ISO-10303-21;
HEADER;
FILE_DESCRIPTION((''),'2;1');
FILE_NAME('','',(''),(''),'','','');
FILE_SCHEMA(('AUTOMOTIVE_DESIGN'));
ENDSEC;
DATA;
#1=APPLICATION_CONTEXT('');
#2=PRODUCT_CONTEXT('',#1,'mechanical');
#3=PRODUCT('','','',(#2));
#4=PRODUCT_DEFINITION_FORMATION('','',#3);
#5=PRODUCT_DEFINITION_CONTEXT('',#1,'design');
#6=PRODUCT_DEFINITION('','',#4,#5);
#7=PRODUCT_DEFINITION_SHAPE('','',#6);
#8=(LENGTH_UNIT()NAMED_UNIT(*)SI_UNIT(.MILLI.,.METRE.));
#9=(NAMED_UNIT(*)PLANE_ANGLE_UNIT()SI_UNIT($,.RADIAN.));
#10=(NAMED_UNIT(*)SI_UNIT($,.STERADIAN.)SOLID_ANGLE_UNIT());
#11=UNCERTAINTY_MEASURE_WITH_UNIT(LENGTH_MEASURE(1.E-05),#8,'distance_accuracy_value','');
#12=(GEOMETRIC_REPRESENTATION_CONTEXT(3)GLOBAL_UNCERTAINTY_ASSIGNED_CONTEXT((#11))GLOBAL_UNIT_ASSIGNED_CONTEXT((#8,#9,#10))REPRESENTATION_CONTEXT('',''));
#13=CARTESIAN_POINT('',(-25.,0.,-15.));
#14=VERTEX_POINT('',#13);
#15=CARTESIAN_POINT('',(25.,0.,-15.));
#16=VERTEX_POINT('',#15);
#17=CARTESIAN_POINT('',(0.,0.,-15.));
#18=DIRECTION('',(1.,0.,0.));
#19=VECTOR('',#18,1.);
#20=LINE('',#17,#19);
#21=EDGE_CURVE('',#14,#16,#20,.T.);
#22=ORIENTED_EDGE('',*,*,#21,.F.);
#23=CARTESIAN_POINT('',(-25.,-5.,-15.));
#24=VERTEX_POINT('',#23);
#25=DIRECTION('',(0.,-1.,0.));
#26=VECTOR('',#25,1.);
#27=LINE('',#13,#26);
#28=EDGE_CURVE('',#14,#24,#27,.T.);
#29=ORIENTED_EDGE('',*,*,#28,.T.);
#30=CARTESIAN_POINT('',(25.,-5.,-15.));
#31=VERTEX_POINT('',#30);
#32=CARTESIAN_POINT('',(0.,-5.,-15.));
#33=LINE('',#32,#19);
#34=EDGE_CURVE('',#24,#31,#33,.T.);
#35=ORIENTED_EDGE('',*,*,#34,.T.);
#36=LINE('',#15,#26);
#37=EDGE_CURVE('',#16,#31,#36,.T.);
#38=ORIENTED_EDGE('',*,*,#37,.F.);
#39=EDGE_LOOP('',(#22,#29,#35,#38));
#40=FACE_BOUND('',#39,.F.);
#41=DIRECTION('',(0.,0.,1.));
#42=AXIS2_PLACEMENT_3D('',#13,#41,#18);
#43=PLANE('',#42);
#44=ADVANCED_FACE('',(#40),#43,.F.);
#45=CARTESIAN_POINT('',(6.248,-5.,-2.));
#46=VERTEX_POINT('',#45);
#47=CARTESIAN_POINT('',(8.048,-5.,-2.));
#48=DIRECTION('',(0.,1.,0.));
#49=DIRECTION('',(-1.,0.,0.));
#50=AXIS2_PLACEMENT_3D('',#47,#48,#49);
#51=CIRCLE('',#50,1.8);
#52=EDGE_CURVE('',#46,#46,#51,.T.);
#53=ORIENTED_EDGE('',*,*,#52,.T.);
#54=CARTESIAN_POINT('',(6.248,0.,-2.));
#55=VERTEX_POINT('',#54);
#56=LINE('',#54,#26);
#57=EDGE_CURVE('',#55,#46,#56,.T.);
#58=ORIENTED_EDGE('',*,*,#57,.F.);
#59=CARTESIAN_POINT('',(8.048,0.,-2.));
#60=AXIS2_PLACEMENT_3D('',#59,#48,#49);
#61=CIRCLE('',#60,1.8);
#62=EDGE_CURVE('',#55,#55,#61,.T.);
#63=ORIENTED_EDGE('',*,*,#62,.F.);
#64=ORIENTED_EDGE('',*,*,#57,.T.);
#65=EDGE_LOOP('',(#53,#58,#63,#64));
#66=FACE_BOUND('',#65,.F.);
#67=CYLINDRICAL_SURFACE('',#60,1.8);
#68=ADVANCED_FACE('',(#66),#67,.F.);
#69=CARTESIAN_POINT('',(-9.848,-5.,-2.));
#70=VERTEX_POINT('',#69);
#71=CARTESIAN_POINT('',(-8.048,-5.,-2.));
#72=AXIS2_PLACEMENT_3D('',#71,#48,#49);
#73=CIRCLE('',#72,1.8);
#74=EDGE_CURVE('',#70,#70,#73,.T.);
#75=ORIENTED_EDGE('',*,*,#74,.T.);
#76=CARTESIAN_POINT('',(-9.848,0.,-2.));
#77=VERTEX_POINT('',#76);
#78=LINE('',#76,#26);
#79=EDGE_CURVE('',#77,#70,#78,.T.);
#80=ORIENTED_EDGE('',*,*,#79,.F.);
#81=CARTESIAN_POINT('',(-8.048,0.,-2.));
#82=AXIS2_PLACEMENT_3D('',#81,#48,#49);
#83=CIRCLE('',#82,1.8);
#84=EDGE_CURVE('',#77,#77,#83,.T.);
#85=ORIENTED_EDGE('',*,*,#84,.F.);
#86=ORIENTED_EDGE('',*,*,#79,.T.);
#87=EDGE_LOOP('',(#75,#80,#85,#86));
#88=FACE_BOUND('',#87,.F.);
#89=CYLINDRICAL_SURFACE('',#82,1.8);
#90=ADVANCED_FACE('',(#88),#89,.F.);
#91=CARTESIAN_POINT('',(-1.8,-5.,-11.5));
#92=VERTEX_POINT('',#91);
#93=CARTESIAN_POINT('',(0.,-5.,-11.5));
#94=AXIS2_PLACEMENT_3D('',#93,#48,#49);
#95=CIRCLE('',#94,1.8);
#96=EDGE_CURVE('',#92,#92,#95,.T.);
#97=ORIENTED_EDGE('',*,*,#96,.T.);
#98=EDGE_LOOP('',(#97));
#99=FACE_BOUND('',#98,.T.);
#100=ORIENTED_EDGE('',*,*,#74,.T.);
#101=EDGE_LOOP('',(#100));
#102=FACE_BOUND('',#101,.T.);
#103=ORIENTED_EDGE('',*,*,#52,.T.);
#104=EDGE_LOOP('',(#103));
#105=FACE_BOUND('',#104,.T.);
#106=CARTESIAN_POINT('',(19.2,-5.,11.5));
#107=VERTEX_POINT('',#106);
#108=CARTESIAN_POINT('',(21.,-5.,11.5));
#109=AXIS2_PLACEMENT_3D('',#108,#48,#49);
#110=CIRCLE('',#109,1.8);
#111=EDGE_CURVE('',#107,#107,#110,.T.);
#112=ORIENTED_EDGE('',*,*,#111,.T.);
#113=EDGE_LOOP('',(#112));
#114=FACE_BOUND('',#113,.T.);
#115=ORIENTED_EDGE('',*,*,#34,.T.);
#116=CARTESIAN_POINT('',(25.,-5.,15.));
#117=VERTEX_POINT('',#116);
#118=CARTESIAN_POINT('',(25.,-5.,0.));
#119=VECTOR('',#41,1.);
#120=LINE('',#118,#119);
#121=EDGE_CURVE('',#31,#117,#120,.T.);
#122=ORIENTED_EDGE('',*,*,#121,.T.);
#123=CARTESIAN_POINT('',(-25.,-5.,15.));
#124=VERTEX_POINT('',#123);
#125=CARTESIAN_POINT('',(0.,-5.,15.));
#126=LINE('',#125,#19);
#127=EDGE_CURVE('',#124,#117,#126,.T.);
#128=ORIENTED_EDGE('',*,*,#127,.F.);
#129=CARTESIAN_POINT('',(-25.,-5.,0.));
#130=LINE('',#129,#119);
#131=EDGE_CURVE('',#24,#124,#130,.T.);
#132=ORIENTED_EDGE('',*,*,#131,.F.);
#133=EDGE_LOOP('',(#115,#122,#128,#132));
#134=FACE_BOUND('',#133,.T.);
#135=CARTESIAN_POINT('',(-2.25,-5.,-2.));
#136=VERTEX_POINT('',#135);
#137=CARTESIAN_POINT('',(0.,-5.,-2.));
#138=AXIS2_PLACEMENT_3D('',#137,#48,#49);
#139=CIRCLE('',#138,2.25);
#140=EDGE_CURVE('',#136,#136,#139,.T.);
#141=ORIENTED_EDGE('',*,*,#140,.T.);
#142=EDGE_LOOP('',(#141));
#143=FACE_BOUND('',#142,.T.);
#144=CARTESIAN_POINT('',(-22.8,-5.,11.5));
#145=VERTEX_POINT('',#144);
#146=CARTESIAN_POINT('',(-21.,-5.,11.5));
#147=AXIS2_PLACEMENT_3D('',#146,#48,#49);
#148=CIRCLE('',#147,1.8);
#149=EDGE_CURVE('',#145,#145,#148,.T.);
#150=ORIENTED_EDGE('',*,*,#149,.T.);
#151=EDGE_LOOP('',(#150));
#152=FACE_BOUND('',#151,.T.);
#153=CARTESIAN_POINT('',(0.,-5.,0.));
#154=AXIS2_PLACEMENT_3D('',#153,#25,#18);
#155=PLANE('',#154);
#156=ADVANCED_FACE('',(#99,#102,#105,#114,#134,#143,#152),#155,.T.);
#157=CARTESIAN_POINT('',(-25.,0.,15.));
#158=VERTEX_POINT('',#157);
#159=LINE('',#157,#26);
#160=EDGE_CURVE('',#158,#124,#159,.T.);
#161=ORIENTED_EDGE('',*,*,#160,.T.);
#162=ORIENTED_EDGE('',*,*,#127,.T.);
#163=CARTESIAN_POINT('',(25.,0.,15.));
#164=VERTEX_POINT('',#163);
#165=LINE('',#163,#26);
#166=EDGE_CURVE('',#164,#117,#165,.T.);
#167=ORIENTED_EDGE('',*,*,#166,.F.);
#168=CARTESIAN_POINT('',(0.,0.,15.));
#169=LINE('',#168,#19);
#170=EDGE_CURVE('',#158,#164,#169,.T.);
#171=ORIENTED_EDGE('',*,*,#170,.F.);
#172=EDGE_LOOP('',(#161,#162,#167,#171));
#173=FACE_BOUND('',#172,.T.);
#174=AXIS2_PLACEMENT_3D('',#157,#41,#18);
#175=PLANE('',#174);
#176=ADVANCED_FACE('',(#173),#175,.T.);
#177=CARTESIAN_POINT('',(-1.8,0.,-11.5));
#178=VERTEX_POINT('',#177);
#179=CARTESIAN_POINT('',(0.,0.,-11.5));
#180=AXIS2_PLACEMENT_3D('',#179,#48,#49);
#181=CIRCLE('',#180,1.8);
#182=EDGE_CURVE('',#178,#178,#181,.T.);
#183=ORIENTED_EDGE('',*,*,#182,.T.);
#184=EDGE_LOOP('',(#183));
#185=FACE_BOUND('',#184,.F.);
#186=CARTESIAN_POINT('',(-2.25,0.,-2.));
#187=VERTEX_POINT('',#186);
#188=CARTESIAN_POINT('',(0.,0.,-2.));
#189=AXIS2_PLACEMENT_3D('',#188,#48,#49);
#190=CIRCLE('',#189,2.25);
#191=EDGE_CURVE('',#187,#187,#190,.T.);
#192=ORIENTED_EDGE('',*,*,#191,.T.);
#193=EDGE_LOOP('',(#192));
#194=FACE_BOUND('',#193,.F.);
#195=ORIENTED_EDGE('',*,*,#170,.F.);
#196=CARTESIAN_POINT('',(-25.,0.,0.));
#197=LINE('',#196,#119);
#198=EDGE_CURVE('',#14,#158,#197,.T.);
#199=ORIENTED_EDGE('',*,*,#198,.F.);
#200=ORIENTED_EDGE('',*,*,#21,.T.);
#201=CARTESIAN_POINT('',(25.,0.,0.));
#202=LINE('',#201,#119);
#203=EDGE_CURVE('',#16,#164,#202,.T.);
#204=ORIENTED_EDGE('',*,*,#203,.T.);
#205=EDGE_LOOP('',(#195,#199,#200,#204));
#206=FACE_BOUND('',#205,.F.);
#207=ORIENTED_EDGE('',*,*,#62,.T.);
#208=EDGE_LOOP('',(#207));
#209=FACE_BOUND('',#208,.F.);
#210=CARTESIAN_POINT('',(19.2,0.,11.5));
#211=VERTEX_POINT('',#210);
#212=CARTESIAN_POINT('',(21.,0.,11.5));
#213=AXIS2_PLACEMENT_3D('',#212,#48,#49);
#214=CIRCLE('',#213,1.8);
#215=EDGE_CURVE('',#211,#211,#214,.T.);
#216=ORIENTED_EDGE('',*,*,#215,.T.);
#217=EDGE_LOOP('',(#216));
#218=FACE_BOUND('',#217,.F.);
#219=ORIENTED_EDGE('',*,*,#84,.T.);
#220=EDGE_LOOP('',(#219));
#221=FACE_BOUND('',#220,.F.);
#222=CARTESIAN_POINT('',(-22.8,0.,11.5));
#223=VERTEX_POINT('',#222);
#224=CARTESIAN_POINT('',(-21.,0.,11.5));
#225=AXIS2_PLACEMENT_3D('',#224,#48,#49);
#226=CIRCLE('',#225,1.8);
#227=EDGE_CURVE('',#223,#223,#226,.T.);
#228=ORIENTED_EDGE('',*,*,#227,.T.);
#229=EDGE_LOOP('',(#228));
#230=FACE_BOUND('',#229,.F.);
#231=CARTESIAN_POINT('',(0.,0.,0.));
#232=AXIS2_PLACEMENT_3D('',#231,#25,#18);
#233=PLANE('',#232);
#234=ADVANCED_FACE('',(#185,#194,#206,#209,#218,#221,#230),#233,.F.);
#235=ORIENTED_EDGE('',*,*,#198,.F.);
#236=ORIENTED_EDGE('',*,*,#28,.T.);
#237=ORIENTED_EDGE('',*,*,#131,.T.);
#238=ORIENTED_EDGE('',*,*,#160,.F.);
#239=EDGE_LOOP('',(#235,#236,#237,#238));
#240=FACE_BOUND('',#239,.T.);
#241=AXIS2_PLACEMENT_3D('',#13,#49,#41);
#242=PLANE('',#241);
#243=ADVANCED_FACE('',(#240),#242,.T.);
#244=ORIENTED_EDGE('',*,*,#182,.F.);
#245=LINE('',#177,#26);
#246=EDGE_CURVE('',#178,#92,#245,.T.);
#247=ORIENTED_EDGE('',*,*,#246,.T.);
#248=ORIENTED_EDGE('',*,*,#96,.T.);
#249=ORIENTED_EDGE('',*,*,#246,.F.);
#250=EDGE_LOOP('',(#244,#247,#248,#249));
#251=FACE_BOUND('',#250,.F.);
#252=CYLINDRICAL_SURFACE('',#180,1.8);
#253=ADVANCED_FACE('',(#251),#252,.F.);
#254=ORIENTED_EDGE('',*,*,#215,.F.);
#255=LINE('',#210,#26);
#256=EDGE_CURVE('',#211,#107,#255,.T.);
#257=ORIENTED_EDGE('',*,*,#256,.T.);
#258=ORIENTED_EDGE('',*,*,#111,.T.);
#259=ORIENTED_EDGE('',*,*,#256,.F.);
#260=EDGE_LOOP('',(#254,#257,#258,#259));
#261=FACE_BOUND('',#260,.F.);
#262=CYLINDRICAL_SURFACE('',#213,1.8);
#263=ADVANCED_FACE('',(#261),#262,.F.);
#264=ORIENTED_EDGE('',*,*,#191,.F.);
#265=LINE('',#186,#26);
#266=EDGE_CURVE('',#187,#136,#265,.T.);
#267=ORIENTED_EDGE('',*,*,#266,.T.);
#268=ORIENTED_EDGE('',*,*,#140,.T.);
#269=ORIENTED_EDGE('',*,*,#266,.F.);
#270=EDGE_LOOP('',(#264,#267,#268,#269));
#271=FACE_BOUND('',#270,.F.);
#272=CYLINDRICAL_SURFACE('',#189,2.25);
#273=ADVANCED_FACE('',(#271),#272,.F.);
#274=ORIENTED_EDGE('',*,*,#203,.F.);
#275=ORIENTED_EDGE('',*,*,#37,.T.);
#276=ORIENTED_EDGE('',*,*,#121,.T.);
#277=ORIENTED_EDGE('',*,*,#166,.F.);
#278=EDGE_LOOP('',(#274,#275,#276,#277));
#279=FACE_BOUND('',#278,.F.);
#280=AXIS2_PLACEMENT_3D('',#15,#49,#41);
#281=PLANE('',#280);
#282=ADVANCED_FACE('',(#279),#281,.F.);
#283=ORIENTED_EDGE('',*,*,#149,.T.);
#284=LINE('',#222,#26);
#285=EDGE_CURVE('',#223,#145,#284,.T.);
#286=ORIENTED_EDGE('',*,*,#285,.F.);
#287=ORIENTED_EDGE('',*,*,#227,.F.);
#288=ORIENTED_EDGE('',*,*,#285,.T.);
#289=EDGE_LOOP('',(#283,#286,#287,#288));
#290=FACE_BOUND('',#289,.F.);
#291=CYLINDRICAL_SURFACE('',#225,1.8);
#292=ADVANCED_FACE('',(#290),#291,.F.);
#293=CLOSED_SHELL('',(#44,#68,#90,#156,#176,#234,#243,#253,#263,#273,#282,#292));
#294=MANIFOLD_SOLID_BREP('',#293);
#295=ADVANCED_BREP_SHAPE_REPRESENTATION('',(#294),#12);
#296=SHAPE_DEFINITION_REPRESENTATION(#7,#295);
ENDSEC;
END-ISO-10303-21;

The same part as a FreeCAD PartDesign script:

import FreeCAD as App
import Part
import Sketcher

V = App.Vector


def add_polygon(sketch, points):
    """Adds a closed chain of lines whose ends are joined by coincident constraints."""
    first, n = sketch.GeometryCount, len(points)
    for a, b in zip(points, points[1:] + points[:1]):
        sketch.addGeometry(Part.LineSegment(App.Vector(*a, 0), App.Vector(*b, 0)), False)
    for i in range(n):
        sketch.addConstraint(Sketcher.Constraint("Coincident", first + i, 2, first + (i + 1) % n, 1))

doc = App.newDocument("Part")
body = doc.addObject("PartDesign::Body", "Body")

sketch1 = body.newObject("Sketcher::SketchObject", "Sketch")
sketch1.AttachmentSupport = (doc.getObject("XZ_Plane"), [""])
sketch1.MapMode = "FlatFace"
add_polygon(sketch1, [(-25, 15), (-25, -15), (25, -15), (25, 15)])
sketch1.addConstraint([
    Sketcher.Constraint("Vertical", 0),
    Sketcher.Constraint("Horizontal", 1),
    Sketcher.Constraint("Vertical", 2),
    Sketcher.Constraint("Horizontal", 3),
    Sketcher.Constraint("Symmetric", 0, 2, 2, 2, -1, 1),
    Sketcher.Constraint("DistanceX", 1, 1, 1, 2, 50.0),
    Sketcher.Constraint("DistanceY", 0, 2, 0, 1, 30.0),
])
pad1 = body.newObject("PartDesign::Pad", "Pad")
pad1.Profile = sketch1
pad1.Length = 5

sketch2 = body.newObject("Sketcher::SketchObject", "Sketch001")
sketch2.AttachmentSupport = (doc.getObject("XZ_Plane"), [""])
sketch2.MapMode = "FlatFace"
sketch2.addGeometry(Part.Circle(V(0, -11.5, 0), V(0, 0, 1), 1.8), False)
sketch2.addConstraint([
    Sketcher.Constraint("PointOnObject", 0, 3, -2),
    Sketcher.Constraint("Diameter", 0, 3.6),
    Sketcher.Constraint("DistanceY", 0, 3, -1, 1, 11.5),
])
pocket1 = body.newObject("PartDesign::Pocket", "Pocket")
pocket1.Profile = sketch2
pocket1.Type = "ThroughAll"
pocket1.Reversed = True

sketch3 = body.newObject("Sketcher::SketchObject", "Sketch002")
sketch3.AttachmentSupport = (doc.getObject("XZ_Plane"), [""])
sketch3.MapMode = "FlatFace"
sketch3.addGeometry([
    Part.Circle(V(-8, -2, 0), V(0, 0, 1), 1.8),
    Part.Circle(V(0, -2, 0), V(0, 0, 1), 2.2),
    Part.Circle(V(8, -2, 0), V(0, 0, 1), 1.8),
], False)
sketch3.addConstraint([
    Sketcher.Constraint("Equal", 0, 2),
    Sketcher.Constraint("Symmetric", 0, 3, 2, 3, -2),
    Sketcher.Constraint("PointOnObject", 1, 3, -2),
    Sketcher.Constraint("Horizontal", 0, 3, 1, 3),
    Sketcher.Constraint("Diameter", 0, 3.6),
    Sketcher.Constraint("Diameter", 1, 4.5),
    Sketcher.Constraint("DistanceY", 0, 3, -1, 1, 2.0),
    Sketcher.Constraint("DistanceX", 0, 3, -1, 1, 8.048),
])
pocket2 = body.newObject("PartDesign::Pocket", "Pocket001")
pocket2.Profile = sketch3
pocket2.Type = "ThroughAll"
pocket2.Reversed = True

sketch4 = body.newObject("Sketcher::SketchObject", "Sketch003")
sketch4.AttachmentSupport = (doc.getObject("XZ_Plane"), [""])
sketch4.MapMode = "FlatFace"
sketch4.addGeometry([
    Part.Circle(V(21, 11.5, 0), V(0, 0, 1), 1.8),
    Part.Circle(V(-21, 11.5, 0), V(0, 0, 1), 1.8),
], False)
sketch4.addConstraint([
    Sketcher.Constraint("Equal", 0, 1),
    Sketcher.Constraint("Symmetric", 0, 3, 1, 3, -2),
    Sketcher.Constraint("Diameter", 0, 3.6),
    Sketcher.Constraint("DistanceX", -1, 1, 0, 3, 21.0),
    Sketcher.Constraint("DistanceY", -1, 1, 0, 3, 11.5),
])
pocket3 = body.newObject("PartDesign::Pocket", "Pocket002")
pocket3.Profile = sketch4
pocket3.Type = "ThroughAll"
pocket3.Reversed = True

doc.recompute()
